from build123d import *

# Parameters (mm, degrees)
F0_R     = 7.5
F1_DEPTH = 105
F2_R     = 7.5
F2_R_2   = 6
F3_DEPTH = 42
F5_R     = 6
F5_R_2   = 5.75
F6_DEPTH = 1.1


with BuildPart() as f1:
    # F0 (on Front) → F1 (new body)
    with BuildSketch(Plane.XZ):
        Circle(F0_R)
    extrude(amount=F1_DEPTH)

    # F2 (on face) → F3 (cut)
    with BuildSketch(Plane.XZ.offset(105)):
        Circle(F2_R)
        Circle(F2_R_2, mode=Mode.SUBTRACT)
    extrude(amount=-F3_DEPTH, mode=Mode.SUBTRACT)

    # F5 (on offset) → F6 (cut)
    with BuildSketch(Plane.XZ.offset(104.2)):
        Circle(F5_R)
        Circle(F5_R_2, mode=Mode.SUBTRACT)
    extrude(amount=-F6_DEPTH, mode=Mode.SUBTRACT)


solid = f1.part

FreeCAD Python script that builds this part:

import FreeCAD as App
import Part
import Sketcher
from FreeCAD import Vector

doc = App.newDocument("Part")
body = doc.addObject("PartDesign::Body", "Body")

# Sketch on XZ plane
sketch1 = doc.addObject("Sketcher::SketchObject", "Sketch")
body.addObject(sketch1)
sketch1.AttachmentSupport = (doc.XZ_Plane, [""])
sketch1.MapMode = "FlatFace"
sketch1.addGeometry(Part.Circle(Vector(0, 0, 0), Vector(0, 0, 1), 8), False)
sketch1.addConstraint(Sketcher.Constraint("Coincident", 0, 3, -1, 1))
sketch1.addConstraint(Sketcher.Constraint("Diameter", 0, 15.0))
pad1 = doc.addObject("PartDesign::Pad", "Pad")
body.addObject(pad1)
pad1.Profile = sketch1
pad1.Length = 105

# Sketch on XZ plane
sketch2 = doc.addObject("Sketcher::SketchObject", "Sketch001")
body.addObject(sketch2)
sketch2.AttachmentSupport = (doc.XZ_Plane, [""])
sketch2.MapMode = "FlatFace"
sketch2.AttachmentOffset = App.Placement(Vector(0, 0, 105), App.Rotation())
sketch2.addGeometry(Part.Circle(Vector(0, 0, 0), Vector(0, 0, 1), 8), False)
sketch2.addGeometry(Part.Circle(Vector(0, 0, 0), Vector(0, 0, 1), 6), False)
sketch2.addConstraint(Sketcher.Constraint("Coincident", 0, 3, -1, 1))
sketch2.addConstraint(Sketcher.Constraint("Coincident", 1, 3, -1, 1))
sketch2.addConstraint(Sketcher.Constraint("Diameter", 0, 15.0))
sketch2.addConstraint(Sketcher.Constraint("Diameter", 1, 12.0))
pocket1 = doc.addObject("PartDesign::Pocket", "Pocket")
body.addObject(pocket1)
pocket1.Profile = sketch2
pocket1.Length = 42

# Sketch on XZ plane
sketch3 = doc.addObject("Sketcher::SketchObject", "Sketch002")
body.addObject(sketch3)
sketch3.AttachmentSupport = (doc.XZ_Plane, [""])
sketch3.MapMode = "FlatFace"
sketch3.AttachmentOffset = App.Placement(Vector(0, 0, 104.2), App.Rotation())
sketch3.addGeometry(Part.Circle(Vector(0, 0, 0), Vector(0, 0, 1), 6), False)
sketch3.addGeometry(Part.Circle(Vector(0, 0, 0), Vector(0, 0, 1), 6), False)
sketch3.addConstraint(Sketcher.Constraint("Coincident", 0, 3, -1, 1))
sketch3.addConstraint(Sketcher.Constraint("Coincident", 1, 3, -1, 1))
sketch3.addConstraint(Sketcher.Constraint("Diameter", 0, 12.0))
sketch3.addConstraint(Sketcher.Constraint("Diameter", 1, 11.5))
pocket2 = doc.addObject("PartDesign::Pocket", "Pocket001")
body.addObject(pocket2)
pocket2.Profile = sketch3
pocket2.Length = 1.1

doc.recompute()
